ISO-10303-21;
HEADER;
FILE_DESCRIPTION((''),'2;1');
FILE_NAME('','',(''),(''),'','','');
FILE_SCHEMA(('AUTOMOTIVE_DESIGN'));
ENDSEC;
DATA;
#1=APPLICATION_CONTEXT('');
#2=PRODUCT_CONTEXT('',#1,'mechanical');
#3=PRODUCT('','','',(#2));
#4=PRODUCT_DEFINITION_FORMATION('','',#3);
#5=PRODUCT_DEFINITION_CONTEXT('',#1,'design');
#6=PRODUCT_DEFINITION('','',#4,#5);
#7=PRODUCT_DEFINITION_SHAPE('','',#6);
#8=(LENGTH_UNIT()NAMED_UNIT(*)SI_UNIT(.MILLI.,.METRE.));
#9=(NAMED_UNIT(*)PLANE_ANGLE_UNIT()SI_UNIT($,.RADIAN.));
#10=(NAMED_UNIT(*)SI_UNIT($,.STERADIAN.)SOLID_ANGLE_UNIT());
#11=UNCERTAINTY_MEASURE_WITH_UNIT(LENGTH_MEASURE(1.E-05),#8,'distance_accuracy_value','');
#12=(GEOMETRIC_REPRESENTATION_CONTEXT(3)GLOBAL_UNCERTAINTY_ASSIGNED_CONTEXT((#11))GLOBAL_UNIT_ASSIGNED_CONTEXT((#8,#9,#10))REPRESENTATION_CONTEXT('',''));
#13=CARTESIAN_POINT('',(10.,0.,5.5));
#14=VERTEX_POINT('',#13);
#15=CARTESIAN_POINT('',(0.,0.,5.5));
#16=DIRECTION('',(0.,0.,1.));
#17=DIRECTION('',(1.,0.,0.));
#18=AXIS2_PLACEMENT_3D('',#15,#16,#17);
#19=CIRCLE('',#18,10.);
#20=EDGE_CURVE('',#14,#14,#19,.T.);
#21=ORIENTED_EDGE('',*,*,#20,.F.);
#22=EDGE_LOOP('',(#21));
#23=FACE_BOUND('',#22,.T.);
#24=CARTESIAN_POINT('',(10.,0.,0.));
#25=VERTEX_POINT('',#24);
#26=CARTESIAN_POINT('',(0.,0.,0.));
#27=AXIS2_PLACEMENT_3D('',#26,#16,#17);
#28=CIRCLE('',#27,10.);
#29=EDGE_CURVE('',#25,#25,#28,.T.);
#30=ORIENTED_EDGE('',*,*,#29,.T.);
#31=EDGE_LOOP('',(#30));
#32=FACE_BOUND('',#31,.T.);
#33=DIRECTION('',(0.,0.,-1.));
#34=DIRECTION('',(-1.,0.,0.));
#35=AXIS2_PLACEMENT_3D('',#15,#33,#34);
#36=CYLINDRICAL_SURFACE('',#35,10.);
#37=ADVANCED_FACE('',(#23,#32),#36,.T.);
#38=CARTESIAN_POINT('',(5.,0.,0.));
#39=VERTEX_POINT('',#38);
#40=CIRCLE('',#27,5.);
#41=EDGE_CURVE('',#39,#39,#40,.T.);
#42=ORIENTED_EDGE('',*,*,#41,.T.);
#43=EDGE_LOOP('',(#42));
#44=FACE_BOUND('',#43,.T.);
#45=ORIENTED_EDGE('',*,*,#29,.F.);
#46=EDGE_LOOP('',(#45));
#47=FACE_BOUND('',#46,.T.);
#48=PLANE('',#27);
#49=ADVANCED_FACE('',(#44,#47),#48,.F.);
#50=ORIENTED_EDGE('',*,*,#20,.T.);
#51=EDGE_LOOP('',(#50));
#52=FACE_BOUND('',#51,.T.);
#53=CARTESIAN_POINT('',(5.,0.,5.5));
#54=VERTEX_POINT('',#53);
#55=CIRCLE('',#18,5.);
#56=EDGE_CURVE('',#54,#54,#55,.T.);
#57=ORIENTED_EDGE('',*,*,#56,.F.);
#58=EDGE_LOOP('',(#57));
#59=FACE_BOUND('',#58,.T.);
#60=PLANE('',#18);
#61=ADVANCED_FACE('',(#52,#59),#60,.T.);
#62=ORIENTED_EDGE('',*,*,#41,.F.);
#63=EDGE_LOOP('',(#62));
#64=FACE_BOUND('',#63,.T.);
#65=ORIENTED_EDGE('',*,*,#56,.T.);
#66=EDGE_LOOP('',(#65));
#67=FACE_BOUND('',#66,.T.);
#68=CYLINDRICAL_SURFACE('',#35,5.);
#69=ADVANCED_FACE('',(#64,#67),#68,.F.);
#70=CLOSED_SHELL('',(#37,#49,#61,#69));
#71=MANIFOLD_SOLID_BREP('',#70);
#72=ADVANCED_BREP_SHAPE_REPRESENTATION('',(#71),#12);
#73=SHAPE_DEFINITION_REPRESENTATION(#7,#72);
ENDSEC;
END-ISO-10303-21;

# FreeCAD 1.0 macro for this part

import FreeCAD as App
import Part
import Sketcher
from FreeCAD import Vector
Q = App.Units.Quantity

doc = App.newDocument("Part")
body = doc.addObject("PartDesign::Body", "Body")

sketch1 = body.newObject("Sketcher::SketchObject", "Sketch")
sketch1.AttachmentSupport = (doc.getObject("XY_Plane"), [""])
sketch1.MapMode = "FlatFace"
sketch1.addGeometry(Part.Circle(Vector(0, 0, 0), Vector(0, 0, 1), 10), False)
sketch1.addGeometry(Part.Circle(Vector(0, 0, 0), Vector(0, 0, 1), 5), False)
sketch1.addConstraint(Sketcher.Constraint("Coincident", 0, 3, -1, 1))
sketch1.addConstraint(Sketcher.Constraint("Coincident", 1, 3, -1, 1))
sketch1.addConstraint(Sketcher.Constraint("Diameter", 0, Q("20 mm")))
sketch1.addConstraint(Sketcher.Constraint("Diameter", 1, Q("10 mm")))
pad1 = body.newObject("PartDesign::Pad", "Pad")
pad1.Profile = sketch1
pad1.Length = 5.5

doc.recompute()
